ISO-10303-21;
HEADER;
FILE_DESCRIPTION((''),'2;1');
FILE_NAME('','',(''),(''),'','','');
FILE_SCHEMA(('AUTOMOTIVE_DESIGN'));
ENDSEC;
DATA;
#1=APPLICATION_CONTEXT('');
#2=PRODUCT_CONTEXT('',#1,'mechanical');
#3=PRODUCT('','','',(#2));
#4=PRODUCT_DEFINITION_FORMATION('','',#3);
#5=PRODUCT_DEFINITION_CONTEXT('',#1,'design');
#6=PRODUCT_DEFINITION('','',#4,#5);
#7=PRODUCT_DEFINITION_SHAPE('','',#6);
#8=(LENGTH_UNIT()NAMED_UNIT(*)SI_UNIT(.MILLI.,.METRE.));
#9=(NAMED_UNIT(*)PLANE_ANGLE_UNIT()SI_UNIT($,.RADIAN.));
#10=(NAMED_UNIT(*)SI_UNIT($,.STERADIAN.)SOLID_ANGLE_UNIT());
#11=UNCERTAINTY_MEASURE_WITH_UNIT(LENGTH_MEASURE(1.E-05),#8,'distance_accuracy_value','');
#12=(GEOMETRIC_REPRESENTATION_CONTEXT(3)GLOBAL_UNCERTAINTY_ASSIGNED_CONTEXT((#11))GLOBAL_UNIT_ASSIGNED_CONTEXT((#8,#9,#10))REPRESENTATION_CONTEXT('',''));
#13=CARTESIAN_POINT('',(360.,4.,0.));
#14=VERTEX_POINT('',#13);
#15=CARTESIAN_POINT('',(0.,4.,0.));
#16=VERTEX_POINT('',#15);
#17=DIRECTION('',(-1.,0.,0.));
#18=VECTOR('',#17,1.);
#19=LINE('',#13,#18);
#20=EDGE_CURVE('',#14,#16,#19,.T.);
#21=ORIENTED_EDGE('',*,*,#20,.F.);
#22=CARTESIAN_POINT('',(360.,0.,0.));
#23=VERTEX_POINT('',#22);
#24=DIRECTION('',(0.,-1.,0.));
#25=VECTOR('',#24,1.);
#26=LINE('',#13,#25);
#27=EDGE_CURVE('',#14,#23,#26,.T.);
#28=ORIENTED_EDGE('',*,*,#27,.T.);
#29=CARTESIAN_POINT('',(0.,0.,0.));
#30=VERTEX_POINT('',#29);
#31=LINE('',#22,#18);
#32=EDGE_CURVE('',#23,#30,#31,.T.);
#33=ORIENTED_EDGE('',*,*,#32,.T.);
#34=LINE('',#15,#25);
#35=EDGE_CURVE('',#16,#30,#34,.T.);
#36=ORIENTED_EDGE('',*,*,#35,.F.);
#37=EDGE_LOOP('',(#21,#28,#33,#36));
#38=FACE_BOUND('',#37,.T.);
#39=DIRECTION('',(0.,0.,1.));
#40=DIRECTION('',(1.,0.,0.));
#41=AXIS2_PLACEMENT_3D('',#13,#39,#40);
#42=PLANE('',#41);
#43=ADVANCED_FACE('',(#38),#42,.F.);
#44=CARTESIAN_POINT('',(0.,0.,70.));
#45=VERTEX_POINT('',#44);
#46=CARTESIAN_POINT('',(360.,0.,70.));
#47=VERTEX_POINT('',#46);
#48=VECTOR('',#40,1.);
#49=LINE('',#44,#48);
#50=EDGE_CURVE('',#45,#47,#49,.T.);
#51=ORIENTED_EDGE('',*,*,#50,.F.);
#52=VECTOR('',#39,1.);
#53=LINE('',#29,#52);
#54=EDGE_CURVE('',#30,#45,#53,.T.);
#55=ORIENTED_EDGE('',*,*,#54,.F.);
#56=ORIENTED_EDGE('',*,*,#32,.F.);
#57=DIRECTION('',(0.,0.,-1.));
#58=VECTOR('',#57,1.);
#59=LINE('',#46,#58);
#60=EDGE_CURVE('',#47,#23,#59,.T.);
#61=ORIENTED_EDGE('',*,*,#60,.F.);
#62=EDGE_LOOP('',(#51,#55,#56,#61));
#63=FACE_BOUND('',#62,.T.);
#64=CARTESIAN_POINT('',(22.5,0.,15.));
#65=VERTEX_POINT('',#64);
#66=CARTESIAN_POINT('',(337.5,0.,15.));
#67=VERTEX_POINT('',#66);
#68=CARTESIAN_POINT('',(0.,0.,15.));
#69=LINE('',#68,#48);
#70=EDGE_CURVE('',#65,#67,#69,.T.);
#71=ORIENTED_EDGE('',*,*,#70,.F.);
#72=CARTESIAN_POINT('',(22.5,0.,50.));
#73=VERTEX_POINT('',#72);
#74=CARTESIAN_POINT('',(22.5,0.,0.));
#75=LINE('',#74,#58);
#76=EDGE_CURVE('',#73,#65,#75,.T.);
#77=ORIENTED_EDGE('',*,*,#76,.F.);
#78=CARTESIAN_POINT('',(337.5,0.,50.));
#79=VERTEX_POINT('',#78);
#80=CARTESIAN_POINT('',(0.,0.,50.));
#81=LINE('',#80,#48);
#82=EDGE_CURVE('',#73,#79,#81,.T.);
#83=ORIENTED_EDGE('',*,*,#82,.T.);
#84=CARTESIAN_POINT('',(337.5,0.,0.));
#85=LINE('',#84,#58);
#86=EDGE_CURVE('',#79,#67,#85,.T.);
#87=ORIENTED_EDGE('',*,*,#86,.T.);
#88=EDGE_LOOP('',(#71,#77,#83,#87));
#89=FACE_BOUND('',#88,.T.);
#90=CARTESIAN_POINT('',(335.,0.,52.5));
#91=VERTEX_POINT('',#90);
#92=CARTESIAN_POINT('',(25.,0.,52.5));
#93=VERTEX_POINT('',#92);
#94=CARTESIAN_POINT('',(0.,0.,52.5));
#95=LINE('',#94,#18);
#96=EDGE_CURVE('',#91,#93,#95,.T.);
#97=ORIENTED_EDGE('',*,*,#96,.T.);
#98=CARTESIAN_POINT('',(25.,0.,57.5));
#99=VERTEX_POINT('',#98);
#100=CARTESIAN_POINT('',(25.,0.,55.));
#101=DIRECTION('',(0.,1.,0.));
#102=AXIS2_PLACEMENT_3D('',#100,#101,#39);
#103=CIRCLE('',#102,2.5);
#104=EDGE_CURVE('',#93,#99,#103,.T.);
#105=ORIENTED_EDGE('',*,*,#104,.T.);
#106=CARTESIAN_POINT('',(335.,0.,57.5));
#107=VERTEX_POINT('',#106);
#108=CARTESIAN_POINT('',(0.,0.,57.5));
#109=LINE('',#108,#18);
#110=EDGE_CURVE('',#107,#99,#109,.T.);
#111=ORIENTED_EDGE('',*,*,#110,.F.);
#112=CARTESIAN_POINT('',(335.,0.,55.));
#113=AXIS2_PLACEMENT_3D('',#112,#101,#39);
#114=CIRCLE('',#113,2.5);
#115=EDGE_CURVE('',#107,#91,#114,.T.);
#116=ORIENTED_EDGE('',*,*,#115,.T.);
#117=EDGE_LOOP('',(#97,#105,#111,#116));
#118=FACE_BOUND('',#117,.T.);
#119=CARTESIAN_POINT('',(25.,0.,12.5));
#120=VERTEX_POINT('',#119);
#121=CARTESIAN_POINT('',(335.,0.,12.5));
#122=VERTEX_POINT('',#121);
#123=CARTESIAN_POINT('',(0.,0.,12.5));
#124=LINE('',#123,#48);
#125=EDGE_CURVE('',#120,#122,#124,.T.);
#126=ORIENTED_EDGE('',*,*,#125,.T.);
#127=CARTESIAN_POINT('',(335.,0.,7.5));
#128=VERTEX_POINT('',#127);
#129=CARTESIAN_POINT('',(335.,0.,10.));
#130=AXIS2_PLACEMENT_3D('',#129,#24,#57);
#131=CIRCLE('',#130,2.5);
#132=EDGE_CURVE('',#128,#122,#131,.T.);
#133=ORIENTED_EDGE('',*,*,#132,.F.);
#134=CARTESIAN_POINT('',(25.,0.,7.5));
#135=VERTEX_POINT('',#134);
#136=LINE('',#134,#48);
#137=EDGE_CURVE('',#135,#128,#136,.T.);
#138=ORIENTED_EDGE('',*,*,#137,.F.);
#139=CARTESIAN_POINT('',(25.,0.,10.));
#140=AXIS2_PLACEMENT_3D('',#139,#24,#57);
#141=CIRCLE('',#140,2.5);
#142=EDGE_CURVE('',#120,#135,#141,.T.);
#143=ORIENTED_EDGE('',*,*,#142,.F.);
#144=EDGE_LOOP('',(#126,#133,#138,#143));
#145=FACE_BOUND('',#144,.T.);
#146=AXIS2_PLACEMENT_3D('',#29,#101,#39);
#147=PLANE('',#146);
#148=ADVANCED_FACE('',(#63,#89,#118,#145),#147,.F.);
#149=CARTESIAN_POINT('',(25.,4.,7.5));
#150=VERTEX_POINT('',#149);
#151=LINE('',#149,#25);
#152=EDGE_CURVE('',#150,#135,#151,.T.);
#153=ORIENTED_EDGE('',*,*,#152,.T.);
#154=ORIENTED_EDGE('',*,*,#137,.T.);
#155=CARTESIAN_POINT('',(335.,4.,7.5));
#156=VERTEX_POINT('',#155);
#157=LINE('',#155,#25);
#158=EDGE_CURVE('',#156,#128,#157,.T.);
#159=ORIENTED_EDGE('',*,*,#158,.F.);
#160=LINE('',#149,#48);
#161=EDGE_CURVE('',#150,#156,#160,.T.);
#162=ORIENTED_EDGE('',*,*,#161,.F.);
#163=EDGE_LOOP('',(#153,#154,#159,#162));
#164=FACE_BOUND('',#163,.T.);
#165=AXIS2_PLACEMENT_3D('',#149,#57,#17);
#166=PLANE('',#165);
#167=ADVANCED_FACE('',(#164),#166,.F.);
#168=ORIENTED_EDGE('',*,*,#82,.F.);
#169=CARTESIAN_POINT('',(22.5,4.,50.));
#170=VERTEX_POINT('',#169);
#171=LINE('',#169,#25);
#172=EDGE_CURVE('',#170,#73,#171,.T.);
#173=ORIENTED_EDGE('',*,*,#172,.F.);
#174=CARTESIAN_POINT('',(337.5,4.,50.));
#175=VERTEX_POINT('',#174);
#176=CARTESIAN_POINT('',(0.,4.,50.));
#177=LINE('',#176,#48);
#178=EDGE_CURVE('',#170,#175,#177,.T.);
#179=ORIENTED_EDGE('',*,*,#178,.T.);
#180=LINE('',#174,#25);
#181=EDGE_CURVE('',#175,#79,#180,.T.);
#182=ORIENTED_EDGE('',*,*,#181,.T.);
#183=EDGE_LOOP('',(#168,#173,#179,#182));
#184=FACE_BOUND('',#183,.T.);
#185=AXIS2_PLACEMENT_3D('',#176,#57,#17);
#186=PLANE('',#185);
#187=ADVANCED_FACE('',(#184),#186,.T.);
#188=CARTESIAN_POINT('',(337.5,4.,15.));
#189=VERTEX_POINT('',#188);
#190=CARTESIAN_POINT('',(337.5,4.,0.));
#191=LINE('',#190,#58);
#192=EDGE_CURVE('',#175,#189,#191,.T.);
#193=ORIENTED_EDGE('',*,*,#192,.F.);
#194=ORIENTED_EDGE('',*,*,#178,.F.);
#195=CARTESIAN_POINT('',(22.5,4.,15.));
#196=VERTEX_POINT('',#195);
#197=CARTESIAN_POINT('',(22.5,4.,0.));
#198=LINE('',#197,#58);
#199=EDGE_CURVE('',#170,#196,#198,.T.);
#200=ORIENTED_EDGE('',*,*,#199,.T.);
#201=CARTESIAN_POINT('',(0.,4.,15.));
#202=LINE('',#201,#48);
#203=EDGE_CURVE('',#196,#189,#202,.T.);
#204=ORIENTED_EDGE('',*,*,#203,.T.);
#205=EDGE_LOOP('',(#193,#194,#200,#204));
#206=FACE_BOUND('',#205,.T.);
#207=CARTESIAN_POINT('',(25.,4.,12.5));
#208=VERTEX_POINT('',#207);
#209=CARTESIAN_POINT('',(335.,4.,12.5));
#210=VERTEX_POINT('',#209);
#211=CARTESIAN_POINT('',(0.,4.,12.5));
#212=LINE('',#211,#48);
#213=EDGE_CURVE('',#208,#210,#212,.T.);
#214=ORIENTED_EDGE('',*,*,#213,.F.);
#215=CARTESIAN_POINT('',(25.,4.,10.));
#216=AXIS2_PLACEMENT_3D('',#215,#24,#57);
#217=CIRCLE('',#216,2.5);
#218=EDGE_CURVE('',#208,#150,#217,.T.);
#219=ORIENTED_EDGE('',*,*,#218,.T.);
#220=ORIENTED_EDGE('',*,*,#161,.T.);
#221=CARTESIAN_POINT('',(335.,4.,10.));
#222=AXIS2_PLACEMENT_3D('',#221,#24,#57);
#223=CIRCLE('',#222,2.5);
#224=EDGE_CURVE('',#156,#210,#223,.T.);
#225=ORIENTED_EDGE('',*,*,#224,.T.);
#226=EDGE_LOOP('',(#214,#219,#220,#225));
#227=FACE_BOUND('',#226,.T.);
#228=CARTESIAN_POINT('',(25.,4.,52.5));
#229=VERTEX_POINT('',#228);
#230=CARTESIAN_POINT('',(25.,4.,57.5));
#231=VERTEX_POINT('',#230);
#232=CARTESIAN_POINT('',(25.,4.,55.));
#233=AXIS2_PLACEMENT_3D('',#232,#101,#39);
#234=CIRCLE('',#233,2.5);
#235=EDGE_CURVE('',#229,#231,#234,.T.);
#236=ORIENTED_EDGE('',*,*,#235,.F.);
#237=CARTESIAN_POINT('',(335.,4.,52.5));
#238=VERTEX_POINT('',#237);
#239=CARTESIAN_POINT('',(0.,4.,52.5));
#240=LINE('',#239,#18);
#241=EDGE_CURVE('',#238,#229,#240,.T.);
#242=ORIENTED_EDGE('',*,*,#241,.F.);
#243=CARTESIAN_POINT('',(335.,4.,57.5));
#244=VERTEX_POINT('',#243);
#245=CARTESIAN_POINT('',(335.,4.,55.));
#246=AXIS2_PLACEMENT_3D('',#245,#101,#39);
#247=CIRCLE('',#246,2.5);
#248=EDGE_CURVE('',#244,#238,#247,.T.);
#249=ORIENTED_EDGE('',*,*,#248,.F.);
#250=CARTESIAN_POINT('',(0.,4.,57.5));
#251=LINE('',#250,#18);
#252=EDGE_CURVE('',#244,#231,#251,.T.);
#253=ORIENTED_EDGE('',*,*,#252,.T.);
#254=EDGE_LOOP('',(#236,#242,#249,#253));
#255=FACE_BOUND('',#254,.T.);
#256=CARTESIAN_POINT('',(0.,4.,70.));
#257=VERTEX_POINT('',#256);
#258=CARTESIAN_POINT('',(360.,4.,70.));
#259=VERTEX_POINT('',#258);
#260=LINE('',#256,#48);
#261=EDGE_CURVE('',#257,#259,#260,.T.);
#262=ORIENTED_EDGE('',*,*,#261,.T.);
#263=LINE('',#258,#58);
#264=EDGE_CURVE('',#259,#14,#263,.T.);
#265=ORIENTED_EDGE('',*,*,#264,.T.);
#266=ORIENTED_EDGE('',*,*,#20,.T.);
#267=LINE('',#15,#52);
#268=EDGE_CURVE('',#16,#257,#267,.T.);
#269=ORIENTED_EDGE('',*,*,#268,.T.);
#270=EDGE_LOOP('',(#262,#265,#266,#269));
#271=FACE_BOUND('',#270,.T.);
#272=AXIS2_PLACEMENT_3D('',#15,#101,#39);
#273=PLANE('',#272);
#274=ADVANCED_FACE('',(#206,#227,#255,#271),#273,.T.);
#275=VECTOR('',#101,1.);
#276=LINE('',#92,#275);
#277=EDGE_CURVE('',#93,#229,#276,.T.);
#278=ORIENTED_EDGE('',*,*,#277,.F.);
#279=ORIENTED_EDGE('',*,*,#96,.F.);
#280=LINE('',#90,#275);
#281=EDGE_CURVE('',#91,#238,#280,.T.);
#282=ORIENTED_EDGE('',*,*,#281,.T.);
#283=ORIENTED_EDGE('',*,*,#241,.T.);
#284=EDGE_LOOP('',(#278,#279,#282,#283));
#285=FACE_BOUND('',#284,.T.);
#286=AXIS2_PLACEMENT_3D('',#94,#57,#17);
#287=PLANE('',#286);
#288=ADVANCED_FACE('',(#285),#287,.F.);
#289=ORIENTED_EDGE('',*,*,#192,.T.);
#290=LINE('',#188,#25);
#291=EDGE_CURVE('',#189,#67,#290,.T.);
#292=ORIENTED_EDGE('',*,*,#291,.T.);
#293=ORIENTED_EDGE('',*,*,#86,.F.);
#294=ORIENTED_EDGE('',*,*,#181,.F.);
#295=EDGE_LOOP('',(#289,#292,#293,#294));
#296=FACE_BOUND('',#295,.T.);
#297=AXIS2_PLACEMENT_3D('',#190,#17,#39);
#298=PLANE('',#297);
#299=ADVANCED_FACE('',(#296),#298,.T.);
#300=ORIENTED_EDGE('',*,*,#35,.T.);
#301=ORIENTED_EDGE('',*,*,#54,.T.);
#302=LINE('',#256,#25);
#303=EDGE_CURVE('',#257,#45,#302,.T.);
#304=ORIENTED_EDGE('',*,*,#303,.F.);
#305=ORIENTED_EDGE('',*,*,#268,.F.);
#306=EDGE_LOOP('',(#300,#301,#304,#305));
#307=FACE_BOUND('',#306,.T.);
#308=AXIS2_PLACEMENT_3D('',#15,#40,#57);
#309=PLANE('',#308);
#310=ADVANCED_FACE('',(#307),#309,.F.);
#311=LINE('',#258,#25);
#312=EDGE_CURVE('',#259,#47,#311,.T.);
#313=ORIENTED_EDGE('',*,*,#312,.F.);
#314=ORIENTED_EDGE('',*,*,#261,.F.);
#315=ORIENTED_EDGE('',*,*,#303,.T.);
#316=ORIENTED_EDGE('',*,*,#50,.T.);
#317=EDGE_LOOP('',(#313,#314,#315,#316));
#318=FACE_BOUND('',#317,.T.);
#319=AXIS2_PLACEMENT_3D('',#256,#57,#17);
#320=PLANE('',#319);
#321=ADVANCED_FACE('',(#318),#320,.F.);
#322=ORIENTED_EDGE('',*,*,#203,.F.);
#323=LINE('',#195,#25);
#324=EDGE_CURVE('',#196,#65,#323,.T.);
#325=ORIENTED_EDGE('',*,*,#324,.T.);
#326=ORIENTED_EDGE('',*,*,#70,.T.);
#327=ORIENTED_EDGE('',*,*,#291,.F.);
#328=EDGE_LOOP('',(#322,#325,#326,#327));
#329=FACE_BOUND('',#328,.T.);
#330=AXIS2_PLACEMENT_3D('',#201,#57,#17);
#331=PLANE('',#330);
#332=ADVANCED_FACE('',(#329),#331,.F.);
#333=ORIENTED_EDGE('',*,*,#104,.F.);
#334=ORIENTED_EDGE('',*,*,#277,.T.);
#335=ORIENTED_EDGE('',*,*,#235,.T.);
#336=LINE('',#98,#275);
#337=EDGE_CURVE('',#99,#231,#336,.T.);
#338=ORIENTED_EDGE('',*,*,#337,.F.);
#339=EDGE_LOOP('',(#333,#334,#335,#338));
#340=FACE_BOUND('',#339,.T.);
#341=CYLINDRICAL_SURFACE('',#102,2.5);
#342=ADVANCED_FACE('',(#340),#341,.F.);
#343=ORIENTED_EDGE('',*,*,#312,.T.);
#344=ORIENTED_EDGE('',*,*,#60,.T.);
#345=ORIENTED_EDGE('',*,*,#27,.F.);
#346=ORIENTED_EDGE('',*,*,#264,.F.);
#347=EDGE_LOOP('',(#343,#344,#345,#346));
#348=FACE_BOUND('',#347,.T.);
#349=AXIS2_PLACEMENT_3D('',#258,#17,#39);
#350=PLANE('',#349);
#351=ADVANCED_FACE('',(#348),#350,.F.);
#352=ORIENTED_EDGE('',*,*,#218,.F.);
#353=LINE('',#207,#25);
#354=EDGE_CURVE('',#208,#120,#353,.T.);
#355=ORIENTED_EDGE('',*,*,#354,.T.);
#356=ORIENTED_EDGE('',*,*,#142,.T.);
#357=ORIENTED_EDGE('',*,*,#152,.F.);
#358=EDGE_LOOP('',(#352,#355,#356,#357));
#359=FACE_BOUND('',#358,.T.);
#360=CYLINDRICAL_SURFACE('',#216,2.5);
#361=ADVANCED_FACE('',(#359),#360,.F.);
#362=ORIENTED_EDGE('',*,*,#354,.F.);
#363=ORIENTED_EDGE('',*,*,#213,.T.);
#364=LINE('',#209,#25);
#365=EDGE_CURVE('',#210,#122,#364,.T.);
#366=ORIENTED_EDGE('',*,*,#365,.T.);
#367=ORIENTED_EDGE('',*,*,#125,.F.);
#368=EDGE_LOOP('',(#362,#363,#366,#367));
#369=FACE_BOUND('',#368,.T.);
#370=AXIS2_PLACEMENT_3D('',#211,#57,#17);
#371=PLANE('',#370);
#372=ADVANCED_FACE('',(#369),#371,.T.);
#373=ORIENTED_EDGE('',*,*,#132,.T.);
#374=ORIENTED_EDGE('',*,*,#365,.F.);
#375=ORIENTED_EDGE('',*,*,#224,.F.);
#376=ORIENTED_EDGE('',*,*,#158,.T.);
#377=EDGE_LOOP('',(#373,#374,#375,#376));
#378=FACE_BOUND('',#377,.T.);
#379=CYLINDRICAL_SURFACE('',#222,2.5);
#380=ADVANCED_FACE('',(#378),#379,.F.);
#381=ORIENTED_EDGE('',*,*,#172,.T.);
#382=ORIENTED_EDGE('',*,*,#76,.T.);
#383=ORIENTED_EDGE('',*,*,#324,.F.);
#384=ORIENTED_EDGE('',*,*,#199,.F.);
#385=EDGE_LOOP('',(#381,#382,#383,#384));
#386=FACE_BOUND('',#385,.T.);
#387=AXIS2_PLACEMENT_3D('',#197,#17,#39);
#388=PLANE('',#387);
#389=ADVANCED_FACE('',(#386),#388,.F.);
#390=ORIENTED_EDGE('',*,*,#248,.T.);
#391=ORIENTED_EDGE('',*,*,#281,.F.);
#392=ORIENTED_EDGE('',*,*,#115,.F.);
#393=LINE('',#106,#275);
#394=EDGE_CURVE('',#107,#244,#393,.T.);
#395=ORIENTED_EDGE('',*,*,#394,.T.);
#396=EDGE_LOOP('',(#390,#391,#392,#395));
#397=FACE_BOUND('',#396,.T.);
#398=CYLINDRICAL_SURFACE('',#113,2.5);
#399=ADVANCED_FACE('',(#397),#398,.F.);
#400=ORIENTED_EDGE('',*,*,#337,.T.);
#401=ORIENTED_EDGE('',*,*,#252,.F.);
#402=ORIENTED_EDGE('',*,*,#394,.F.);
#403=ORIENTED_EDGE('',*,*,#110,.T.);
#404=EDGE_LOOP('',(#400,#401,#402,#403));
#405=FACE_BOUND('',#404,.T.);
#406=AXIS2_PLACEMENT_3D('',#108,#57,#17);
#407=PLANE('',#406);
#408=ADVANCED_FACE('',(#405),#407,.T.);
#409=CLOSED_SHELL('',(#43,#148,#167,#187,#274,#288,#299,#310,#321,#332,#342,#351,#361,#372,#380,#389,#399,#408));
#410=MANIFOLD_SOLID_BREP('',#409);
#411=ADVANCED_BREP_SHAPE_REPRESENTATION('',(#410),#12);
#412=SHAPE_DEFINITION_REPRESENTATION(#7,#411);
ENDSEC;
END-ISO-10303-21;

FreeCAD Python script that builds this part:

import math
import FreeCAD as App
import Part
import Sketcher
Q = App.Units.Quantity

doc = App.newDocument("Part")
body = doc.addObject("PartDesign::Body", "Body")

# Sketch on XZ plane
sketch1 = body.newObject("Sketcher::SketchObject", "Sketch")
sketch1.AttachmentSupport = (doc.getObject("XZ_Plane"), [""])
sketch1.MapMode = "FlatFace"
sketch1.addGeometry([
    Part.LineSegment(App.Vector(0, 0, 0), App.Vector(0, 70, 0)),
    Part.LineSegment(App.Vector(0, 70, 0), App.Vector(360, 70, 0)),
    Part.LineSegment(App.Vector(360, 70, 0), App.Vector(360, 0, 0)),
    Part.LineSegment(App.Vector(360, 0, 0), App.Vector(0, 0, 0)),
], False)
sketch1.addConstraint([
    Sketcher.Constraint("Coincident", 0, 2, 1, 1),
    Sketcher.Constraint("Coincident", 1, 2, 2, 1),
    Sketcher.Constraint("Coincident", 2, 2, 3, 1),
    Sketcher.Constraint("Coincident", 3, 2, 0, 1),
    Sketcher.Constraint("Vertical", 0),
    Sketcher.Constraint("Horizontal", 1),
    Sketcher.Constraint("Vertical", 2),
    Sketcher.Constraint("Horizontal", 3),
    Sketcher.Constraint("Coincident", 3, 2, -1, 1),
    Sketcher.Constraint("DistanceX", 1, 1, 1, 2, Q("360 mm")),
    Sketcher.Constraint("DistanceY", 0, 1, 0, 2, Q("70 mm")),
])
pad1 = body.newObject("PartDesign::Pad", "Pad")
pad1.Profile = sketch1
pad1.Length = 4
pad1.Reversed = True

# Sketch on XZ plane
sketch2 = body.newObject("Sketcher::SketchObject", "Sketch001")
sketch2.AttachmentSupport = (doc.getObject("XZ_Plane"), [""])
sketch2.MapMode = "FlatFace"
sketch2.AttachmentOffset = App.Placement(App.Vector(0, 0, -4), App.Rotation())
sketch2.addGeometry([
    Part.ArcOfCircle(Part.Circle(App.Vector(335, 55, 0), App.Vector(0, 0, 1), 2.5), math.radians(-90), math.radians(0)),  # 0
    Part.LineSegment(App.Vector(335, 52.5, 0), App.Vector(25, 52.5, 0)),  # 1
    Part.ArcOfCircle(Part.Circle(App.Vector(25, 55, 0), App.Vector(0, 0, 1), 2.5), math.radians(180), math.radians(270)),  # 2
    Part.ArcOfCircle(Part.Circle(App.Vector(25, 55, 0), App.Vector(0, 0, 1), 2.5), math.radians(90), math.radians(180)),  # 3
    Part.LineSegment(App.Vector(25, 57.5, 0), App.Vector(335, 57.5, 0)),  # 4
    Part.ArcOfCircle(Part.Circle(App.Vector(335, 55, 0), App.Vector(0, 0, 1), 2.5), math.radians(0), math.radians(90)),  # 5
], False)
sketch2.addConstraint([
    Sketcher.Constraint("Tangent", 0, 1, 1, 1),
    Sketcher.Constraint("Tangent", 1, 2, 2, 2),
    Sketcher.Constraint("Tangent", 2, 1, 3, 2),
    Sketcher.Constraint("Tangent", 3, 1, 4, 1),
    Sketcher.Constraint("Tangent", 4, 2, 5, 2),
    Sketcher.Constraint("Tangent", 5, 1, 0, 2),
    Sketcher.Constraint("Horizontal", 1),
    Sketcher.Constraint("Horizontal", 4),
    Sketcher.Constraint("Equal", 0, 2),
    Sketcher.Constraint("Equal", 2, 3),
    Sketcher.Constraint("Horizontal", 5, 3, 2, 1),
    Sketcher.Constraint("Horizontal", 2, 1, 5, 1),
    Sketcher.Constraint("Radius", 0, Q("2.5 mm")),
    Sketcher.Constraint("DistanceX", 1, 2, 1, 1, Q("310 mm")),
    Sketcher.Constraint("DistanceX", -1, 1, 0, 3, Q("335 mm")),
    Sketcher.Constraint("DistanceY", -1, 1, 0, 3, Q("55 mm")),
])
pocket1 = body.newObject("PartDesign::Pocket", "Pocket")
pocket1.Profile = sketch2
pocket1.Type = "ThroughAll"
pocket1.Reversed = True

# Sketch on XZ plane
sketch3 = body.newObject("Sketcher::SketchObject", "Sketch002")
sketch3.AttachmentSupport = (doc.getObject("XZ_Plane"), [""])
sketch3.MapMode = "FlatFace"
sketch3.addGeometry([
    Part.LineSegment(App.Vector(335, 12.5, 0), App.Vector(25, 12.5, 0)),
    Part.ArcOfCircle(Part.Circle(App.Vector(25, 10, 0), App.Vector(0, 0, 1), 2.5), math.radians(90), math.radians(270)),
    Part.LineSegment(App.Vector(25, 7.5, 0), App.Vector(335, 7.5, 0)),
    Part.ArcOfCircle(Part.Circle(App.Vector(335, 10, 0), App.Vector(0, 0, 1), 2.5), math.radians(-90), math.radians(90)),
], False)
sketch3.addConstraint([
    Sketcher.Constraint("Tangent", 0, 2, 1, 1),
    Sketcher.Constraint("Tangent", 1, 2, 2, 1),
    Sketcher.Constraint("Tangent", 2, 2, 3, 1),
    Sketcher.Constraint("Tangent", 3, 2, 0, 1),
    Sketcher.Constraint("Horizontal", 0),
    Sketcher.Constraint("Horizontal", 2),
    Sketcher.Constraint("Radius", 1, Q("2.5 mm")),
    Sketcher.Constraint("DistanceX", 0, 2, 0, 1, Q("310 mm")),
    Sketcher.Constraint("DistanceX", -1, 1, 1, 3, Q("25 mm")),
    Sketcher.Constraint("DistanceY", -1, 1, 1, 3, Q("10 mm")),
])
pocket2 = body.newObject("PartDesign::Pocket", "Pocket001")
pocket2.Profile = sketch3
pocket2.Type = "ThroughAll"

# Sketch on XZ plane
sketch4 = body.newObject("Sketcher::SketchObject", "Sketch003")
sketch4.AttachmentSupport = (doc.getObject("XZ_Plane"), [""])
sketch4.MapMode = "FlatFace"
sketch4.addGeometry([
    Part.LineSegment(App.Vector(22.5, 50, 0), App.Vector(22.5, 15, 0)),
    Part.LineSegment(App.Vector(22.5, 15, 0), App.Vector(337.5, 15, 0)),
    Part.LineSegment(App.Vector(337.5, 15, 0), App.Vector(337.5, 50, 0)),
    Part.LineSegment(App.Vector(337.5, 50, 0), App.Vector(22.5, 50, 0)),
], False)
sketch4.addConstraint([
    Sketcher.Constraint("Coincident", 0, 2, 1, 1),
    Sketcher.Constraint("Coincident", 1, 2, 2, 1),
    Sketcher.Constraint("Coincident", 2, 2, 3, 1),
    Sketcher.Constraint("Coincident", 3, 2, 0, 1),
    Sketcher.Constraint("Vertical", 0),
    Sketcher.Constraint("Horizontal", 1),
    Sketcher.Constraint("Vertical", 2),
    Sketcher.Constraint("Horizontal", 3),
    Sketcher.Constraint("DistanceX", 1, 1, 1, 2, Q("315 mm")),
    Sketcher.Constraint("DistanceY", 0, 2, 0, 1, Q("35 mm")),
    Sketcher.Constraint("DistanceY", -1, 1, 0, 2, Q("15 mm")),
    Sketcher.Constraint("DistanceX", -1, 1, 0, 2, Q("22.5 mm")),
])
pocket3 = body.newObject("PartDesign::Pocket", "Pocket002")
pocket3.Profile = sketch4
pocket3.Type = "ThroughAll"

doc.recompute()
